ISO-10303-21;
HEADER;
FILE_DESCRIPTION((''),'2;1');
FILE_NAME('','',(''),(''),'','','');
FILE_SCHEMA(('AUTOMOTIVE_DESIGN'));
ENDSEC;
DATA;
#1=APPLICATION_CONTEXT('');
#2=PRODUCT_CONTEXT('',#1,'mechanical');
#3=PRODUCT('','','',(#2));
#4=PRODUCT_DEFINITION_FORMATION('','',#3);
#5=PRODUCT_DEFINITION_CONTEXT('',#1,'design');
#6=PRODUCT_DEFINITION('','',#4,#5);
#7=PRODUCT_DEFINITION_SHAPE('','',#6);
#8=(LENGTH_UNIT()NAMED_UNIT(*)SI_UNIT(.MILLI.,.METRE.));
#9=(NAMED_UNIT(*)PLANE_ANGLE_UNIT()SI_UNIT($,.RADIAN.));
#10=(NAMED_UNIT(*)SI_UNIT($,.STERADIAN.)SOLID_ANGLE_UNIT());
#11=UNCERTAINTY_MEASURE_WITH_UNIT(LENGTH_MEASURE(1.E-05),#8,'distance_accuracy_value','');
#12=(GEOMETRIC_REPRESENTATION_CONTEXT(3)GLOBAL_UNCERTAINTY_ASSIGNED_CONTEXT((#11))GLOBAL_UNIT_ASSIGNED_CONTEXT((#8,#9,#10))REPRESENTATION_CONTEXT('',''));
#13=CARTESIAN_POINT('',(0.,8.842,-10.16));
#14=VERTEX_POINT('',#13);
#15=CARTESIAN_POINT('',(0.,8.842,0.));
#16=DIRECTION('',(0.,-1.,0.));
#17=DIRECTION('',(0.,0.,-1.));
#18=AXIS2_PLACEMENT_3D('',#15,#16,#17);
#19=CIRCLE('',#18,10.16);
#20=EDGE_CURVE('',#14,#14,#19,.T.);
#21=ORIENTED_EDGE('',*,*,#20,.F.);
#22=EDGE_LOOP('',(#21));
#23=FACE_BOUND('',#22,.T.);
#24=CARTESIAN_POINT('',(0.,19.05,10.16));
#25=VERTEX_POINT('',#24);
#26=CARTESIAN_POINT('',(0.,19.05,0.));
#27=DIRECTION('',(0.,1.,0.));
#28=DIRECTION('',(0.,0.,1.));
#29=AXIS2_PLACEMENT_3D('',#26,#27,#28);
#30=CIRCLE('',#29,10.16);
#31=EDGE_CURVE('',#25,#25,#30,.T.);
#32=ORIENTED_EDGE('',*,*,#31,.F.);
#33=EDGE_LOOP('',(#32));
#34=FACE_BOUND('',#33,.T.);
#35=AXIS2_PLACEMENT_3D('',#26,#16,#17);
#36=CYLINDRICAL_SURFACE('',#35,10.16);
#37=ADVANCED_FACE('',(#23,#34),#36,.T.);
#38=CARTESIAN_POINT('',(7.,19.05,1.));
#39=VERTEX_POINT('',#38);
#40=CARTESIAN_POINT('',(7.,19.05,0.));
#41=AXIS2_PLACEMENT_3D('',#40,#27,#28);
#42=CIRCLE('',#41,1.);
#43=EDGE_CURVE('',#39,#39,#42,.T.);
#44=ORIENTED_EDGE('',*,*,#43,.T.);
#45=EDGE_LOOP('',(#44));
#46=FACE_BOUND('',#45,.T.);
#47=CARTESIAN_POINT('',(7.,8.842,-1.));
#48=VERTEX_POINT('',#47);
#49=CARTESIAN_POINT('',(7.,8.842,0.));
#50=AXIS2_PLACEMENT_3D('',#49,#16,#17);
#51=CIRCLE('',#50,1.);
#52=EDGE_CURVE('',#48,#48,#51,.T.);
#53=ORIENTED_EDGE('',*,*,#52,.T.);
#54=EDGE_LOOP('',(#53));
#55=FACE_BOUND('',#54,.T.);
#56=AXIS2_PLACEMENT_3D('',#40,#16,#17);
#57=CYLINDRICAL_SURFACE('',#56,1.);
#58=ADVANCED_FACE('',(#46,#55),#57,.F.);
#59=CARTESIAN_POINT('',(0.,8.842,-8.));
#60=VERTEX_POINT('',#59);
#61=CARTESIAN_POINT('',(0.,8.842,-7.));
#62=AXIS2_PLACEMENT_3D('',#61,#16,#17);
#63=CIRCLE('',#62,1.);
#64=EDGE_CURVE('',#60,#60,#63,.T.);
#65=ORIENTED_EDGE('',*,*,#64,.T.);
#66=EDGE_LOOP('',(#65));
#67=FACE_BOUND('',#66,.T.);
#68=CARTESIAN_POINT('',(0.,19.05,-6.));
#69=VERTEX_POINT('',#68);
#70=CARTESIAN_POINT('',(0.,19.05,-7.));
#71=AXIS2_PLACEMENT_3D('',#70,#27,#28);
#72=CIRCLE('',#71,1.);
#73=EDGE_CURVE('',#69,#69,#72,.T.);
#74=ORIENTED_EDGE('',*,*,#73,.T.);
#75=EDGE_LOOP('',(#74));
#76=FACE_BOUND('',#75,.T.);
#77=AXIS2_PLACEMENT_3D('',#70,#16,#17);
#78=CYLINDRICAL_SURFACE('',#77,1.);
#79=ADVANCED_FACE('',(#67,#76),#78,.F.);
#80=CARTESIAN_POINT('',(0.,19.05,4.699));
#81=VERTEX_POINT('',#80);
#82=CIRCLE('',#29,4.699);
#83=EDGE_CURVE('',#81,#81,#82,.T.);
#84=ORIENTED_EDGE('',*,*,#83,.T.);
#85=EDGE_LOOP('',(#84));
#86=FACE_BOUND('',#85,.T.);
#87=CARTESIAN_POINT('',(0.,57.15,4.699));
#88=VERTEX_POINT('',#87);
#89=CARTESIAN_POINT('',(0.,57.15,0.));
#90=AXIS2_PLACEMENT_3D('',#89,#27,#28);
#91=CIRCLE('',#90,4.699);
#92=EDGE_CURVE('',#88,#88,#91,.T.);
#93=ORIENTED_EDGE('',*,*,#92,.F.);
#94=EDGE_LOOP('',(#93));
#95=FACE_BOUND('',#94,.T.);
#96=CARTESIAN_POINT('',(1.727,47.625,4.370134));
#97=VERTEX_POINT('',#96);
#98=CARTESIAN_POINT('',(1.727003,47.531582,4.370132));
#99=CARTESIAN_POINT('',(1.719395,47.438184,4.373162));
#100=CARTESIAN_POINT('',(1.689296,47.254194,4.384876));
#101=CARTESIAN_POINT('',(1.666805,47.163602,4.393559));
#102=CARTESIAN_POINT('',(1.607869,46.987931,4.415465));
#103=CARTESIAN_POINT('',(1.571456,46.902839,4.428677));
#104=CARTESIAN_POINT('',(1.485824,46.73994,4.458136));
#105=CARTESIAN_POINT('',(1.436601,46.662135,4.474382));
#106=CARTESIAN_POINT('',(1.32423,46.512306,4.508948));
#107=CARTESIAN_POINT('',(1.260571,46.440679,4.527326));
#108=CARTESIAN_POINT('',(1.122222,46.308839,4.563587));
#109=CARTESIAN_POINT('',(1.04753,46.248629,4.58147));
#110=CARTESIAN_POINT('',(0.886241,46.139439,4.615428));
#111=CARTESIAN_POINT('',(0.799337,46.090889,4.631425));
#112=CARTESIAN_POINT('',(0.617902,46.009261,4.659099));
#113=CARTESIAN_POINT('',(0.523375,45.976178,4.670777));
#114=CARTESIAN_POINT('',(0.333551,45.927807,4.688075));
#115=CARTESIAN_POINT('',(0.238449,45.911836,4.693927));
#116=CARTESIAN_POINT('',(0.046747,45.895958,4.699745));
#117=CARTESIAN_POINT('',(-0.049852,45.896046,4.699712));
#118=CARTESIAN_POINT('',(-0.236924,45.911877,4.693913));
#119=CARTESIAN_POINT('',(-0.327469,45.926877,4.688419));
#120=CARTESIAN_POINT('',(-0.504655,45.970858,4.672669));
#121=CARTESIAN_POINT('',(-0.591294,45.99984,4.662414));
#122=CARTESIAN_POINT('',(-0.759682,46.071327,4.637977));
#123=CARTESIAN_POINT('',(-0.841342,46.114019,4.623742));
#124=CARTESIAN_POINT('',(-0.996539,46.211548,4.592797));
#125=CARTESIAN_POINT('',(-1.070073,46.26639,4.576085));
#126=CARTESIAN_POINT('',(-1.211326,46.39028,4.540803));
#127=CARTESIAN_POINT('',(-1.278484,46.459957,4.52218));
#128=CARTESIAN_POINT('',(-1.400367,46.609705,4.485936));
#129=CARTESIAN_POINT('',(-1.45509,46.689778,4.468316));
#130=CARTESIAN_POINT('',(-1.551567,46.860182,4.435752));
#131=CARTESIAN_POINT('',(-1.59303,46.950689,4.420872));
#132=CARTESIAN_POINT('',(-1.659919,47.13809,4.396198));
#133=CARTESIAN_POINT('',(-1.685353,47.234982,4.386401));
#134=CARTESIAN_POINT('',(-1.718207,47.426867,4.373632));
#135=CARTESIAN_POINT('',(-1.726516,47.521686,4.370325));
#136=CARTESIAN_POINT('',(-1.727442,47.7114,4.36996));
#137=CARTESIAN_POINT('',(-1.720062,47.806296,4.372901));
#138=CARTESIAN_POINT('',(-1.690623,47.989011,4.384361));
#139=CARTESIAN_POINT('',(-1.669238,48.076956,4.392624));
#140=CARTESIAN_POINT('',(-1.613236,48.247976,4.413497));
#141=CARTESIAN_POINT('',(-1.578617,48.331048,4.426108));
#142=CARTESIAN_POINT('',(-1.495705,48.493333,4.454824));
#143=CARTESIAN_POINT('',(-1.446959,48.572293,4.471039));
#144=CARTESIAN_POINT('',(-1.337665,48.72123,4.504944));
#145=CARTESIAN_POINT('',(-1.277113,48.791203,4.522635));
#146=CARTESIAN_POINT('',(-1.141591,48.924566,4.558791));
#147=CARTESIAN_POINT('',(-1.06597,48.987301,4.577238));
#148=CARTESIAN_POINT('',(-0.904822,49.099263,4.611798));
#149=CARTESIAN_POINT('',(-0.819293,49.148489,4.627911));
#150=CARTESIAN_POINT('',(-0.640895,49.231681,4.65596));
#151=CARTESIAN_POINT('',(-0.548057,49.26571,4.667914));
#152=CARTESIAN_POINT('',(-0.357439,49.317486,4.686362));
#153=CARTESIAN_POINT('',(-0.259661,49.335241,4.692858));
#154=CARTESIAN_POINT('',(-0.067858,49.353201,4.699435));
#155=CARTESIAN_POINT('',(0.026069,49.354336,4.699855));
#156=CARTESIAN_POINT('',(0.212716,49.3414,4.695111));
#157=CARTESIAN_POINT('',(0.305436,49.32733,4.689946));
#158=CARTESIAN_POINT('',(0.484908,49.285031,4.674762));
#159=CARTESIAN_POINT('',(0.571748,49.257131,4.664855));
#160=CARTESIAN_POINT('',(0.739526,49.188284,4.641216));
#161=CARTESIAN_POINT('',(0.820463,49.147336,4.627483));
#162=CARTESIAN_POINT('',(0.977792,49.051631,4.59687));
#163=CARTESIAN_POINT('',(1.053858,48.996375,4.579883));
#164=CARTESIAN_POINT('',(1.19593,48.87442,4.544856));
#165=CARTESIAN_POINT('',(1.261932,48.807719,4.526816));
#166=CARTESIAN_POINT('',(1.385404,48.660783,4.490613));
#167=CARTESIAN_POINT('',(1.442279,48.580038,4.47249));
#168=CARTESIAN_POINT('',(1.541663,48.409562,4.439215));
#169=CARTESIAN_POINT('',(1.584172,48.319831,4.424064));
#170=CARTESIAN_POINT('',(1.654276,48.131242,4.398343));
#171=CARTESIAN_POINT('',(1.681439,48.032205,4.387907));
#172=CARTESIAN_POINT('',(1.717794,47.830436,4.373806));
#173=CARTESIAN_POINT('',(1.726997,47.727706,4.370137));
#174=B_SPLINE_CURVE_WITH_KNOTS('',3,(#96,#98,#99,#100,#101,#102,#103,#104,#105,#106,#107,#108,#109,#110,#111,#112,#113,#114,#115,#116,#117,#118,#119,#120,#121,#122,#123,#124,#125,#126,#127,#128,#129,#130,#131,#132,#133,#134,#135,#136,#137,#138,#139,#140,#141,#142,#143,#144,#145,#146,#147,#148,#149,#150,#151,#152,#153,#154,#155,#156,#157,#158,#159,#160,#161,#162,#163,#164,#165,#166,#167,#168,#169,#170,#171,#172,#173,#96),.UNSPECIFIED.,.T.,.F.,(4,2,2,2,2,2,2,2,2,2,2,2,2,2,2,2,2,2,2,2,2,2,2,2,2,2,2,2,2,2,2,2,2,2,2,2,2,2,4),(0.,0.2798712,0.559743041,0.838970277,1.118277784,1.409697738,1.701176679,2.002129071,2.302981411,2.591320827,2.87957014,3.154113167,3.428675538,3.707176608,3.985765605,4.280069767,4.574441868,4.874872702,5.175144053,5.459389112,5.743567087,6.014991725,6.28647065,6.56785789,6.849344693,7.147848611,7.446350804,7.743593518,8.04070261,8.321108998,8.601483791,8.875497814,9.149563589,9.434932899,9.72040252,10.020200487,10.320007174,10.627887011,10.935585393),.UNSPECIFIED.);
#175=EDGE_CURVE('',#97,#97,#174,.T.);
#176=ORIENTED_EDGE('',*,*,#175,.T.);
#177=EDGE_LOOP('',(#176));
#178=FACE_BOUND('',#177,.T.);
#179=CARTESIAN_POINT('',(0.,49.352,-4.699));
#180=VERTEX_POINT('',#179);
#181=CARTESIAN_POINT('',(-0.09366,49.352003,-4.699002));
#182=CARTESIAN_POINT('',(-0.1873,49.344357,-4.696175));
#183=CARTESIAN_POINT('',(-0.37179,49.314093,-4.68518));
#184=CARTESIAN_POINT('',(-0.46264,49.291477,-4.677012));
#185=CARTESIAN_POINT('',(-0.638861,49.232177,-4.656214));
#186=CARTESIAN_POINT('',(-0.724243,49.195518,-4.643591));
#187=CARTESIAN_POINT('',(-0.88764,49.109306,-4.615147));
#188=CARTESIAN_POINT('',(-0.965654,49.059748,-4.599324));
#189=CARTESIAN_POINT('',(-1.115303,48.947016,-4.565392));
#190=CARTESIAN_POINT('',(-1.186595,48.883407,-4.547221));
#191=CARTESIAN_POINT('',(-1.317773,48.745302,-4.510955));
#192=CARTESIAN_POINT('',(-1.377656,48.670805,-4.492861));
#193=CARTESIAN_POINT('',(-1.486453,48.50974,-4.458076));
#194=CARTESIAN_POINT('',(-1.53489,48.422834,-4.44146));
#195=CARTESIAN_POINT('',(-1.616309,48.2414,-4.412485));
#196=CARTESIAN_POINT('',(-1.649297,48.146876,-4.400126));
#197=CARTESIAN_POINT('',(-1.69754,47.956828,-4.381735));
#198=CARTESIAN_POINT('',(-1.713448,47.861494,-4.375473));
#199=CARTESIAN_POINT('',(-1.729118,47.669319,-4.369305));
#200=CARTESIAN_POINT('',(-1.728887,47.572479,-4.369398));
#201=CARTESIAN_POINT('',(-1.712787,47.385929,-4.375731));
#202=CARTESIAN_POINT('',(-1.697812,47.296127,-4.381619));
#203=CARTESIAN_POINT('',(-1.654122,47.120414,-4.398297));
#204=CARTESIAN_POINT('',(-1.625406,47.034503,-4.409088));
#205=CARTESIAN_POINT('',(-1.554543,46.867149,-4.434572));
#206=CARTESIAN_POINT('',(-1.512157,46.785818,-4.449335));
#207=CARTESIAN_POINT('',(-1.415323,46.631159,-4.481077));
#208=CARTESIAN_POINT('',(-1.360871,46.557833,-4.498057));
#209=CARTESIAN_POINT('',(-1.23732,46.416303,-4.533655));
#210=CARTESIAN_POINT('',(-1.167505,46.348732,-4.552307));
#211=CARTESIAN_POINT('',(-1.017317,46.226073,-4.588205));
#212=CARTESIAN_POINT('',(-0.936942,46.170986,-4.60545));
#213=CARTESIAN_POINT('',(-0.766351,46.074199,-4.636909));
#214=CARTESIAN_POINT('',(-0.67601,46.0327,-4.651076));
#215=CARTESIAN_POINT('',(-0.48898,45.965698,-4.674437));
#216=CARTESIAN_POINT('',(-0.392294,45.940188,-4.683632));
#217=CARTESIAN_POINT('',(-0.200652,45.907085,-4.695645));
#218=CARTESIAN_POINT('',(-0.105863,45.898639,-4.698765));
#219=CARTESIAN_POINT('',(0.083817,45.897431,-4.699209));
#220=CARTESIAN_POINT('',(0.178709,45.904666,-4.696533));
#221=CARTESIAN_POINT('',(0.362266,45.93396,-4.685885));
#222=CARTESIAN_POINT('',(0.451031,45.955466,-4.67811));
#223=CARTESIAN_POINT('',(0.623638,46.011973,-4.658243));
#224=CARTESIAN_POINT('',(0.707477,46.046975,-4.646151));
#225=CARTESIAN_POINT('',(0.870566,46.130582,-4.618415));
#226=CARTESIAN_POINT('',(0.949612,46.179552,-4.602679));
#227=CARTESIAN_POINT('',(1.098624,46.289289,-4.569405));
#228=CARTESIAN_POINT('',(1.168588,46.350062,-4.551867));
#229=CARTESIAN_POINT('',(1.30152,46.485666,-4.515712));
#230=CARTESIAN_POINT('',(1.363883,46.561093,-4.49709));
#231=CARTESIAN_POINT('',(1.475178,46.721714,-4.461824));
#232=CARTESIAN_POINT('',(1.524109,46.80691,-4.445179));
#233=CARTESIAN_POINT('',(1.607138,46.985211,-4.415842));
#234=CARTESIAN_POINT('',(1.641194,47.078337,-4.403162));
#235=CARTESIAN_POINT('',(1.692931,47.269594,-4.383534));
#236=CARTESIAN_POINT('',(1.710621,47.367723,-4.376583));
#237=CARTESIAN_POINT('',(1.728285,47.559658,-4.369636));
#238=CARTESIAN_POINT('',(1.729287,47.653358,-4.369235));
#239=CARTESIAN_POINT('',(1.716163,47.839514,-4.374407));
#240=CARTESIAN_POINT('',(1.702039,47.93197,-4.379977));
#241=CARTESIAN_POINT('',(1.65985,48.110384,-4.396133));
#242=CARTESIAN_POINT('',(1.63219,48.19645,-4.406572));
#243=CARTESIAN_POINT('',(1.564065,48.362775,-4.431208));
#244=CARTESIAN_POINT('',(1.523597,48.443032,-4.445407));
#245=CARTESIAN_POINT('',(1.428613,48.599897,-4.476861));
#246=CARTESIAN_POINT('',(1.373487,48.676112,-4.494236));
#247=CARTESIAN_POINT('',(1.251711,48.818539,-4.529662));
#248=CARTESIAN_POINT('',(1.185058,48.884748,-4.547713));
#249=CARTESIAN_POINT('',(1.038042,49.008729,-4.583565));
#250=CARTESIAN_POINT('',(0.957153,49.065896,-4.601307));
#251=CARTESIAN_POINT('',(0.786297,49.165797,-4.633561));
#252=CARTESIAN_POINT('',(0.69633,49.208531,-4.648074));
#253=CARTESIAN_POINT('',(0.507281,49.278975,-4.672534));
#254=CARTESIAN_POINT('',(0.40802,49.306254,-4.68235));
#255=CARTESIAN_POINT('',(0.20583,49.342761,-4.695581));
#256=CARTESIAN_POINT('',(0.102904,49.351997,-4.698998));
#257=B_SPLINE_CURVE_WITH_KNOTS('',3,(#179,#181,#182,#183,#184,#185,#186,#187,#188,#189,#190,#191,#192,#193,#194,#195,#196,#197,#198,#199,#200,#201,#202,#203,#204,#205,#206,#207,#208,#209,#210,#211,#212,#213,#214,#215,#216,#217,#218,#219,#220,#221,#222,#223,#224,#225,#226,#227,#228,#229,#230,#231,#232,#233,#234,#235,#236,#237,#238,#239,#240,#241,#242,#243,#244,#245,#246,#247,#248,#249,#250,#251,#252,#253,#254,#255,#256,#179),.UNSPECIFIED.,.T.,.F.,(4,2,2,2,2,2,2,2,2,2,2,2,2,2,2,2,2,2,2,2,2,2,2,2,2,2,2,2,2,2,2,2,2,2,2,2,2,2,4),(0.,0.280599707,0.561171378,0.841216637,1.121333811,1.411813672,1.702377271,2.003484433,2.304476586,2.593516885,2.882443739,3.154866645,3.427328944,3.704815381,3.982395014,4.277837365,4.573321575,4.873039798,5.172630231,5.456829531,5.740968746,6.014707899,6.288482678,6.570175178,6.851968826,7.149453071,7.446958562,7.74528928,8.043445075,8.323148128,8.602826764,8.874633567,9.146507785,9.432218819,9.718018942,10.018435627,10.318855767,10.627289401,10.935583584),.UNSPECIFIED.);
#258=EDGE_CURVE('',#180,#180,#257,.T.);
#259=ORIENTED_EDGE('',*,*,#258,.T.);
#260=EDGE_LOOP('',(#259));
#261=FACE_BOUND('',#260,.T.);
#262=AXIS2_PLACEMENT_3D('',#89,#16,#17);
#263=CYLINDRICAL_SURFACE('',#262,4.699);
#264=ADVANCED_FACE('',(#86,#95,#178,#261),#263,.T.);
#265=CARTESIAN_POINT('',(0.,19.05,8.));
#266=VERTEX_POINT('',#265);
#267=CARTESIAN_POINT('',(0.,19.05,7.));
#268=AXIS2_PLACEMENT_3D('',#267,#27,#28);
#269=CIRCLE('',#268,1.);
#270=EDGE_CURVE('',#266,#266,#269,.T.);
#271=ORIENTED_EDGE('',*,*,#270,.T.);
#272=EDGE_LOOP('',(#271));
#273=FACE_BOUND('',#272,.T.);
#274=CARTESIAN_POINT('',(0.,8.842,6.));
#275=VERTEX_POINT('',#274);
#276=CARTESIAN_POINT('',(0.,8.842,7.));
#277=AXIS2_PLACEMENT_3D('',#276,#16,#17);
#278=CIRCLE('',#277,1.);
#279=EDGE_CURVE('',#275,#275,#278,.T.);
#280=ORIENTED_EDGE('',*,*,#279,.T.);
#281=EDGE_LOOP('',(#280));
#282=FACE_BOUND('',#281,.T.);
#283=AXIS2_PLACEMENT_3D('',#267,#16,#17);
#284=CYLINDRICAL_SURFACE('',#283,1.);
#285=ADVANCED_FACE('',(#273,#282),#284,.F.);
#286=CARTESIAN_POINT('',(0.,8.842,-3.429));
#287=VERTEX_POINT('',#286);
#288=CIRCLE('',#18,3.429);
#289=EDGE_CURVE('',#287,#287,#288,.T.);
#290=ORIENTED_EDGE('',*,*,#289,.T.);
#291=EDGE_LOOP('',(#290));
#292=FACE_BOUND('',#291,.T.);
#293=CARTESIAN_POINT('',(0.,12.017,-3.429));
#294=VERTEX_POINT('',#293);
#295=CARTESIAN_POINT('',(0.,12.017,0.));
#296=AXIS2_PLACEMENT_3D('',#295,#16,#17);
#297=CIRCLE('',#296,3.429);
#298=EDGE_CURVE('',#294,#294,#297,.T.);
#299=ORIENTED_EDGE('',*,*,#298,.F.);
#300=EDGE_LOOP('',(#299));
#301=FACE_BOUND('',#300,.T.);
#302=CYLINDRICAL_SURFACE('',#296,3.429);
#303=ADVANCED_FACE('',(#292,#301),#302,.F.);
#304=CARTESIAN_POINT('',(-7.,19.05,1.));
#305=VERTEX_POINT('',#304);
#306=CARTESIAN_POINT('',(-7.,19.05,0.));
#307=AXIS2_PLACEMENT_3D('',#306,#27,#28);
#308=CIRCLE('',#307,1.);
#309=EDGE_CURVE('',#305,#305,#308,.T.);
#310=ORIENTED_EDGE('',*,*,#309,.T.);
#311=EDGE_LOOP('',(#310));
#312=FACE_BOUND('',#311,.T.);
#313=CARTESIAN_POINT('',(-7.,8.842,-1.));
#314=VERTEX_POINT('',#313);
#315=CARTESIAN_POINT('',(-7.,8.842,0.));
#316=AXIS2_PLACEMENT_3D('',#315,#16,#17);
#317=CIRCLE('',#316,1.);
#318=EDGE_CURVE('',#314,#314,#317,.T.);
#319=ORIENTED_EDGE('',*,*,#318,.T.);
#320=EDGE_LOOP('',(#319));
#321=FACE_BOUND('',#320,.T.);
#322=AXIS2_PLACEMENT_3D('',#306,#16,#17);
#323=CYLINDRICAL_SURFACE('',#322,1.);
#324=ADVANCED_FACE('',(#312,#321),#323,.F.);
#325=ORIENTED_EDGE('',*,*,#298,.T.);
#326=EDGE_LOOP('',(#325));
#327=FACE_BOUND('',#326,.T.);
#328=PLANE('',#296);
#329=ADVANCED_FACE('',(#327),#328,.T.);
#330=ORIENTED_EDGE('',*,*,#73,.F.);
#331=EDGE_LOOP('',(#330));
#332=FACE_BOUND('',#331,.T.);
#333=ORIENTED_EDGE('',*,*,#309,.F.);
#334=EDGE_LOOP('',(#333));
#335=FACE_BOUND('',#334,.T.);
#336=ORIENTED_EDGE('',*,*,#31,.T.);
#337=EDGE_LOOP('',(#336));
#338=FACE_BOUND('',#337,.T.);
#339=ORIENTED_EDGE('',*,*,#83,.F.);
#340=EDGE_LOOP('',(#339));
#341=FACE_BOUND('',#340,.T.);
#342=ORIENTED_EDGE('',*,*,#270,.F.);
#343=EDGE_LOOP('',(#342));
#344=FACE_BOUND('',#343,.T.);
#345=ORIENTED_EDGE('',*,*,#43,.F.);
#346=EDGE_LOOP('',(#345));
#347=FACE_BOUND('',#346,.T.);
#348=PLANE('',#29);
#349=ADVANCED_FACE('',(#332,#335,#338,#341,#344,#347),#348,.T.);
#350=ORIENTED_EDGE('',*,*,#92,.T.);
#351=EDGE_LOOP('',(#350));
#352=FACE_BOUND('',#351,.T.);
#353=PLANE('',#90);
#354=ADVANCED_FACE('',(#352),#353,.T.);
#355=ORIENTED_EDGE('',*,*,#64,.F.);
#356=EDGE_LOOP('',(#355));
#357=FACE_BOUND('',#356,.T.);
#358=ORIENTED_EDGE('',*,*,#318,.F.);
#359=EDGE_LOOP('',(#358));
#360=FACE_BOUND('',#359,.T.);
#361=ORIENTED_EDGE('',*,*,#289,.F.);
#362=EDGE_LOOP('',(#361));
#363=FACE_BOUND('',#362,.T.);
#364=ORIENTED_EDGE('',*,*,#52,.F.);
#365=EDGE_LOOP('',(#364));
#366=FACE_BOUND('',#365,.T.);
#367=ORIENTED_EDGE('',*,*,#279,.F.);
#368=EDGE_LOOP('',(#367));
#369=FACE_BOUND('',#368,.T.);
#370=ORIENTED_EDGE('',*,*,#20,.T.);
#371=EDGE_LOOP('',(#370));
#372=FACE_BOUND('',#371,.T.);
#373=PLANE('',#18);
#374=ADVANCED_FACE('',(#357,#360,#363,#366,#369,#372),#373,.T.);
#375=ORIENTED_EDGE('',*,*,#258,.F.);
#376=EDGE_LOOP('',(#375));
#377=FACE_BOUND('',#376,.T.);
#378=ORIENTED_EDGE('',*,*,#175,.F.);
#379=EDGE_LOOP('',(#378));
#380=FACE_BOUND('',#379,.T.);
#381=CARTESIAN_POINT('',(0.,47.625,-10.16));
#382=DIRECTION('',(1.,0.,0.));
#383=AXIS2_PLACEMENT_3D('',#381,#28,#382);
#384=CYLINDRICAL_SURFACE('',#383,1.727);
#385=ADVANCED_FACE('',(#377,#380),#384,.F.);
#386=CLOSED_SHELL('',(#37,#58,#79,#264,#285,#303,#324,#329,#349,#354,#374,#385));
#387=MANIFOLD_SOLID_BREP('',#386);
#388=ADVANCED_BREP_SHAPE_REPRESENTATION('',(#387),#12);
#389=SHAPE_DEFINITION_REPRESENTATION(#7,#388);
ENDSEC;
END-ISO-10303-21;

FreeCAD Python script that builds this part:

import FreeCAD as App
import Part
import Sketcher

V = App.Vector
Q = App.Units.Quantity

doc = App.newDocument("Part")
body = doc.addObject("PartDesign::Body", "Body")

sketch1 = body.newObject("Sketcher::SketchObject", "Sketch")
sketch1.AttachmentSupport = (doc.getObject("XZ_Plane"), [""])
sketch1.MapMode = "FlatFace"
sketch1.addGeometry([
    Part.Circle(V(0, 0, 0), V(0, 0, 1), 10.2),
    Part.Circle(V(-7, 0, 0), V(0, 0, 1), 1),
    Part.Circle(V(0, 7, 0), V(0, 0, 1), 1),
    Part.Circle(V(7, 0, 0), V(0, 0, 1), 1),
    Part.Circle(V(0, -7, 0), V(0, 0, 1), 1),
], False)
sketch1.addConstraint([
    Sketcher.Constraint("Coincident", 0, 3, -1, 1),
    Sketcher.Constraint("Equal", 1, 2),
    Sketcher.Constraint("Equal", 2, 3),
    Sketcher.Constraint("Equal", 3, 4),
    Sketcher.Constraint("Symmetric", 1, 3, 3, 3, -1, 1),
    Sketcher.Constraint("Symmetric", 2, 3, 4, 3, -1, 1),
    Sketcher.Constraint("PointOnObject", 1, 3, -1),
    Sketcher.Constraint("PointOnObject", 2, 3, -2),
    Sketcher.Constraint("Diameter", 0, Q("0.8 in")),
    Sketcher.Constraint("Diameter", 1, 2.0),
    Sketcher.Constraint("DistanceX", 1, 3, -1, 1, 7.0),
    Sketcher.Constraint("DistanceY", -1, 1, 2, 3, 7.0),
])
pad1 = body.newObject("PartDesign::Pad", "Pad")
pad1.Profile = sketch1
pad1.Length = Q("0.75 in")
pad1.Reversed = True

sketch2 = body.newObject("Sketcher::SketchObject", "Sketch001")
sketch2.AttachmentSupport = (doc.getObject("XZ_Plane"), [""])
sketch2.MapMode = "FlatFace"
sketch2.AttachmentOffset = App.Placement(V(0, 0, -0.75 * 25.4), App.Rotation())
sketch2.addGeometry(Part.Circle(V(0, 0, 0), V(0, 0, 1), 4.7), False)
sketch2.addConstraint([
    Sketcher.Constraint("Coincident", 0, 3, -1, 1),
    Sketcher.Constraint("Diameter", 0, Q("0.37 in")),
])
pad2 = body.newObject("PartDesign::Pad", "Pad001")
pad2.Profile = sketch2
pad2.Length = Q("1.5 in")
pad2.Reversed = True

sketch3 = body.newObject("Sketcher::SketchObject", "Sketch002")
sketch3.AttachmentSupport = (doc.getObject("XZ_Plane"), [""])
sketch3.MapMode = "FlatFace"
sketch3.addGeometry(Part.Circle(V(0, 0, 0), V(0, 0, 1), 10), False)
sketch3.addConstraint([
    Sketcher.Constraint("Coincident", 0, 3, -1, 1),
    Sketcher.Constraint("Diameter", 0, Q("0.8 in")),
])
pocket1 = body.newObject("PartDesign::Pocket", "Pocket")
pocket1.Profile = sketch3
pocket1.Length = 8.842

sketch4 = body.newObject("Sketcher::SketchObject", "Sketch003")
sketch4.AttachmentSupport = (doc.getObject("XZ_Plane"), [""])
sketch4.MapMode = "FlatFace"
sketch4.AttachmentOffset = App.Placement(V(0, 0, -8.842), App.Rotation())
sketch4.addGeometry(Part.Circle(V(0, 0, 0), V(0, 0, 1), 3.4), False)
sketch4.addConstraint([
    Sketcher.Constraint("Coincident", 0, 3, -1, 1),
    Sketcher.Constraint("Diameter", 0, Q("0.27 in")),
])
pocket2 = body.newObject("PartDesign::Pocket", "Pocket001")
pocket2.Profile = sketch4
pocket2.Length = Q("0.125 in")

sketch5 = body.newObject("Sketcher::SketchObject", "Sketch004")
sketch5.AttachmentSupport = (doc.getObject("XY_Plane"), [""])
sketch5.MapMode = "FlatFace"
sketch5.addGeometry(Part.Circle(V(0, 47.6, 0), V(0, 0, 1), 1.7), False)
sketch5.addConstraint([
    Sketcher.Constraint("PointOnObject", 0, 3, -2),
    Sketcher.Constraint("Diameter", 0, 3.454),
    Sketcher.Constraint("DistanceY", -1, 1, 0, 3, Q("1.875 in")),
])
pocket3 = body.newObject("PartDesign::Pocket", "Pocket002")
pocket3.Profile = sketch5
pocket3.Type = "ThroughAll"
pocket3.Midplane = True

doc.recompute()
